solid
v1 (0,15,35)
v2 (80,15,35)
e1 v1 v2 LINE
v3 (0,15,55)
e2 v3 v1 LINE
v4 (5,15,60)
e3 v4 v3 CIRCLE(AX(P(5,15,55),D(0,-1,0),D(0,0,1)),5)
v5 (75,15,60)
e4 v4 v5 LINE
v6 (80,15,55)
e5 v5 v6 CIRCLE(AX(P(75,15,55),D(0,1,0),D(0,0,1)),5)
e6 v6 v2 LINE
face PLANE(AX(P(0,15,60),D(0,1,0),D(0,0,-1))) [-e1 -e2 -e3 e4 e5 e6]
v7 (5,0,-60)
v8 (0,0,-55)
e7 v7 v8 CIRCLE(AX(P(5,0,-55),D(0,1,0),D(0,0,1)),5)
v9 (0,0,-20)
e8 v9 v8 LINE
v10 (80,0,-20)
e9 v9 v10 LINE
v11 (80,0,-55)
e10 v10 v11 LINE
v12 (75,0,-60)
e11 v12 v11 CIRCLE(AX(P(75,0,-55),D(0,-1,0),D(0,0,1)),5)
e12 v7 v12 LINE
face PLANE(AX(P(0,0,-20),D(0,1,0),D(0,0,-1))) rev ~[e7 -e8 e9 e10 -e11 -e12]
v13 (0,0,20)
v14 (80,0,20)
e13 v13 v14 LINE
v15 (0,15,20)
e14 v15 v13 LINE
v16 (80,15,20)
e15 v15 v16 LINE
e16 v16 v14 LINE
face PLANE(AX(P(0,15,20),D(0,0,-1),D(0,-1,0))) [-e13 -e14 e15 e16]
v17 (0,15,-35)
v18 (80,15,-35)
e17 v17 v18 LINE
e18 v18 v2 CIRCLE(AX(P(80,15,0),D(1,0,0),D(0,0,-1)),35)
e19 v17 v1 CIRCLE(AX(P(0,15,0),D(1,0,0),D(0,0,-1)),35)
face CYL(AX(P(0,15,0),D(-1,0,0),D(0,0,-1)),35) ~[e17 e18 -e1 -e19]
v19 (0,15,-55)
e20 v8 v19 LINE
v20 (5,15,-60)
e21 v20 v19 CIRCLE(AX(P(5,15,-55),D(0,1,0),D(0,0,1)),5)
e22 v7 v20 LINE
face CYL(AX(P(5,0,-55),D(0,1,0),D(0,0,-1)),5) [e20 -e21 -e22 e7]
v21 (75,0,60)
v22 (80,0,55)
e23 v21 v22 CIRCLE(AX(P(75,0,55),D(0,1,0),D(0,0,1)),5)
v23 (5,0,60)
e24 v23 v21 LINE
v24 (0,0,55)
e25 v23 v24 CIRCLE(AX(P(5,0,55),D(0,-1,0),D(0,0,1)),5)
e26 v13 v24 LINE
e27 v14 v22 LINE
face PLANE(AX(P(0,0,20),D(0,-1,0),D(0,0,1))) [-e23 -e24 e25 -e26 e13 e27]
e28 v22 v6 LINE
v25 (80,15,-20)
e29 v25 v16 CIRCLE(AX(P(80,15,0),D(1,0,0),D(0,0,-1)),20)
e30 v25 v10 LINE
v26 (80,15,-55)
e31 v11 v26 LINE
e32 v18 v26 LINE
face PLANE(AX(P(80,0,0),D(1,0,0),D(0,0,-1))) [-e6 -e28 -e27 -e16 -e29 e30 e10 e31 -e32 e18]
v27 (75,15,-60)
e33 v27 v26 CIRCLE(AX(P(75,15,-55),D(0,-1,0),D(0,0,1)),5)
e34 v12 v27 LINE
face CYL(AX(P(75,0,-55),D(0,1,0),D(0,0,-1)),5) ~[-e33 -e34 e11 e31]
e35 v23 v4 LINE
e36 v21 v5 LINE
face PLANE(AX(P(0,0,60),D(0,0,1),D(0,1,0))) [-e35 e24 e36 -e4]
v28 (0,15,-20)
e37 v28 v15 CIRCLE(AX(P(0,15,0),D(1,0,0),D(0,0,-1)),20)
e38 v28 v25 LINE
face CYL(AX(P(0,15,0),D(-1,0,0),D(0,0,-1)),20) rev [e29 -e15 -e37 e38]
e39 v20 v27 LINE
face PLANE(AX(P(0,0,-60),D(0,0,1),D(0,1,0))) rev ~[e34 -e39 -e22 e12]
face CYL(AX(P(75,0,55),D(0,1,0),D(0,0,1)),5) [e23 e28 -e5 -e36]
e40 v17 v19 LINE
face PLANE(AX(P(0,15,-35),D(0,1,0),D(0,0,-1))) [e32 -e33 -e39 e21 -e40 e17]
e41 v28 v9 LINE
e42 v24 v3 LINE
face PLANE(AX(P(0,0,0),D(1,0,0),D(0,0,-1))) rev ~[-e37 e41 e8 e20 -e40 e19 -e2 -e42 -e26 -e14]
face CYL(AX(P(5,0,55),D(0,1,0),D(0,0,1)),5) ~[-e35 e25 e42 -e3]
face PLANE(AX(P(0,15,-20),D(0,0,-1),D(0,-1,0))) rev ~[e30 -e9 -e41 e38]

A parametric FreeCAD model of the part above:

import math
import FreeCAD as App
import Part
import Sketcher
Q = App.Units.Quantity


def edges_at(feature, points):
    """Names of the edges that pass closest to the given points."""
    edges = feature.Shape.Edges
    near = lambda p: min(range(len(edges)), key=lambda i: edges[i].distToShape(Part.Vertex(*p))[0])
    return sorted({f"Edge{near(p) + 1}" for p in points})

doc = App.newDocument("Part")
body = doc.addObject("PartDesign::Body", "Body")

# Sketch on YZ plane
sketch1 = body.newObject("Sketcher::SketchObject", "Sketch")
sketch1.AttachmentSupport = (doc.getObject("YZ_Plane"), [""])
sketch1.MapMode = "FlatFace"
sketch1.addGeometry([
    Part.LineSegment(App.Vector(15, -20, 0), App.Vector(0, -20, 0)),  # 0
    Part.LineSegment(App.Vector(0, -20, 0), App.Vector(0, -60, 0)),  # 1
    Part.LineSegment(App.Vector(0, -60, 0), App.Vector(15, -60, 0)),  # 2
    Part.LineSegment(App.Vector(15, -60, 0), App.Vector(15, -35, 0)),  # 3
    Part.ArcOfCircle(Part.Circle(App.Vector(15, 0, 0), App.Vector(0, 0, 1), 35), math.radians(-90), math.radians(90)),  # 4
    Part.LineSegment(App.Vector(15, 35, 0), App.Vector(15, 60, 0)),  # 5
    Part.LineSegment(App.Vector(15, 60, 0), App.Vector(0, 60, 0)),  # 6
    Part.LineSegment(App.Vector(0, 60, 0), App.Vector(0, 20, 0)),  # 7
    Part.LineSegment(App.Vector(0, 20, 0), App.Vector(15, 20, 0)),  # 8
    Part.ArcOfCircle(Part.Circle(App.Vector(15, 0, 0), App.Vector(0, 0, 1), 20), math.radians(-90), math.radians(90)),  # 9
], False)
sketch1.addConstraint([
    Sketcher.Constraint("Coincident", 0, 2, 1, 1),
    Sketcher.Constraint("Coincident", 1, 2, 2, 1),
    Sketcher.Constraint("Coincident", 2, 2, 3, 1),
    Sketcher.Constraint("Coincident", 3, 2, 4, 1),
    Sketcher.Constraint("Coincident", 4, 2, 5, 1),
    Sketcher.Constraint("Coincident", 5, 2, 6, 1),
    Sketcher.Constraint("Coincident", 6, 2, 7, 1),
    Sketcher.Constraint("Coincident", 7, 2, 8, 1),
    Sketcher.Constraint("Tangent", 8, 2, 9, 2),
    Sketcher.Constraint("Tangent", 9, 1, 0, 1),
    Sketcher.Constraint("Horizontal", 0),
    Sketcher.Constraint("Vertical", 1),
    Sketcher.Constraint("Horizontal", 2),
    Sketcher.Constraint("Vertical", 3),
    Sketcher.Constraint("Vertical", 5),
    Sketcher.Constraint("Horizontal", 6),
    Sketcher.Constraint("Vertical", 7),
    Sketcher.Constraint("Horizontal", 8),
    Sketcher.Constraint("Coincident", 9, 3, 4, 3),
    Sketcher.Constraint("Symmetric", 1, 2, 6, 2, -1, 1),
    Sketcher.Constraint("Symmetric", 3, 2, 4, 2, -1),
    Sketcher.Constraint("PointOnObject", 0, 2, -2),
    Sketcher.Constraint("Vertical", 9, 3, 2, 2),
    Sketcher.Constraint("DistanceX", 0, 2, 0, 1, Q("15 mm")),
    Sketcher.Constraint("DistanceY", 1, 2, -1, 1, Q("60 mm")),
    Sketcher.Constraint("Radius", 4, Q("35 mm")),
    Sketcher.Constraint("Radius", 9, Q("20 mm")),
])
pad1 = body.newObject("PartDesign::Pad", "Pad")
pad1.Profile = sketch1
pad1.Length = 80
doc.recompute()

fillet = body.newObject("PartDesign::Fillet", "Fillet")
fillet.Base = (pad1, edges_at(pad1, [
    (0, 7.5, 60),
    (80, 7.5, 60),
    (80, 7.5, -60),
    (0, 7.5, -60),
]))
fillet.Radius = 5

doc.recompute()
